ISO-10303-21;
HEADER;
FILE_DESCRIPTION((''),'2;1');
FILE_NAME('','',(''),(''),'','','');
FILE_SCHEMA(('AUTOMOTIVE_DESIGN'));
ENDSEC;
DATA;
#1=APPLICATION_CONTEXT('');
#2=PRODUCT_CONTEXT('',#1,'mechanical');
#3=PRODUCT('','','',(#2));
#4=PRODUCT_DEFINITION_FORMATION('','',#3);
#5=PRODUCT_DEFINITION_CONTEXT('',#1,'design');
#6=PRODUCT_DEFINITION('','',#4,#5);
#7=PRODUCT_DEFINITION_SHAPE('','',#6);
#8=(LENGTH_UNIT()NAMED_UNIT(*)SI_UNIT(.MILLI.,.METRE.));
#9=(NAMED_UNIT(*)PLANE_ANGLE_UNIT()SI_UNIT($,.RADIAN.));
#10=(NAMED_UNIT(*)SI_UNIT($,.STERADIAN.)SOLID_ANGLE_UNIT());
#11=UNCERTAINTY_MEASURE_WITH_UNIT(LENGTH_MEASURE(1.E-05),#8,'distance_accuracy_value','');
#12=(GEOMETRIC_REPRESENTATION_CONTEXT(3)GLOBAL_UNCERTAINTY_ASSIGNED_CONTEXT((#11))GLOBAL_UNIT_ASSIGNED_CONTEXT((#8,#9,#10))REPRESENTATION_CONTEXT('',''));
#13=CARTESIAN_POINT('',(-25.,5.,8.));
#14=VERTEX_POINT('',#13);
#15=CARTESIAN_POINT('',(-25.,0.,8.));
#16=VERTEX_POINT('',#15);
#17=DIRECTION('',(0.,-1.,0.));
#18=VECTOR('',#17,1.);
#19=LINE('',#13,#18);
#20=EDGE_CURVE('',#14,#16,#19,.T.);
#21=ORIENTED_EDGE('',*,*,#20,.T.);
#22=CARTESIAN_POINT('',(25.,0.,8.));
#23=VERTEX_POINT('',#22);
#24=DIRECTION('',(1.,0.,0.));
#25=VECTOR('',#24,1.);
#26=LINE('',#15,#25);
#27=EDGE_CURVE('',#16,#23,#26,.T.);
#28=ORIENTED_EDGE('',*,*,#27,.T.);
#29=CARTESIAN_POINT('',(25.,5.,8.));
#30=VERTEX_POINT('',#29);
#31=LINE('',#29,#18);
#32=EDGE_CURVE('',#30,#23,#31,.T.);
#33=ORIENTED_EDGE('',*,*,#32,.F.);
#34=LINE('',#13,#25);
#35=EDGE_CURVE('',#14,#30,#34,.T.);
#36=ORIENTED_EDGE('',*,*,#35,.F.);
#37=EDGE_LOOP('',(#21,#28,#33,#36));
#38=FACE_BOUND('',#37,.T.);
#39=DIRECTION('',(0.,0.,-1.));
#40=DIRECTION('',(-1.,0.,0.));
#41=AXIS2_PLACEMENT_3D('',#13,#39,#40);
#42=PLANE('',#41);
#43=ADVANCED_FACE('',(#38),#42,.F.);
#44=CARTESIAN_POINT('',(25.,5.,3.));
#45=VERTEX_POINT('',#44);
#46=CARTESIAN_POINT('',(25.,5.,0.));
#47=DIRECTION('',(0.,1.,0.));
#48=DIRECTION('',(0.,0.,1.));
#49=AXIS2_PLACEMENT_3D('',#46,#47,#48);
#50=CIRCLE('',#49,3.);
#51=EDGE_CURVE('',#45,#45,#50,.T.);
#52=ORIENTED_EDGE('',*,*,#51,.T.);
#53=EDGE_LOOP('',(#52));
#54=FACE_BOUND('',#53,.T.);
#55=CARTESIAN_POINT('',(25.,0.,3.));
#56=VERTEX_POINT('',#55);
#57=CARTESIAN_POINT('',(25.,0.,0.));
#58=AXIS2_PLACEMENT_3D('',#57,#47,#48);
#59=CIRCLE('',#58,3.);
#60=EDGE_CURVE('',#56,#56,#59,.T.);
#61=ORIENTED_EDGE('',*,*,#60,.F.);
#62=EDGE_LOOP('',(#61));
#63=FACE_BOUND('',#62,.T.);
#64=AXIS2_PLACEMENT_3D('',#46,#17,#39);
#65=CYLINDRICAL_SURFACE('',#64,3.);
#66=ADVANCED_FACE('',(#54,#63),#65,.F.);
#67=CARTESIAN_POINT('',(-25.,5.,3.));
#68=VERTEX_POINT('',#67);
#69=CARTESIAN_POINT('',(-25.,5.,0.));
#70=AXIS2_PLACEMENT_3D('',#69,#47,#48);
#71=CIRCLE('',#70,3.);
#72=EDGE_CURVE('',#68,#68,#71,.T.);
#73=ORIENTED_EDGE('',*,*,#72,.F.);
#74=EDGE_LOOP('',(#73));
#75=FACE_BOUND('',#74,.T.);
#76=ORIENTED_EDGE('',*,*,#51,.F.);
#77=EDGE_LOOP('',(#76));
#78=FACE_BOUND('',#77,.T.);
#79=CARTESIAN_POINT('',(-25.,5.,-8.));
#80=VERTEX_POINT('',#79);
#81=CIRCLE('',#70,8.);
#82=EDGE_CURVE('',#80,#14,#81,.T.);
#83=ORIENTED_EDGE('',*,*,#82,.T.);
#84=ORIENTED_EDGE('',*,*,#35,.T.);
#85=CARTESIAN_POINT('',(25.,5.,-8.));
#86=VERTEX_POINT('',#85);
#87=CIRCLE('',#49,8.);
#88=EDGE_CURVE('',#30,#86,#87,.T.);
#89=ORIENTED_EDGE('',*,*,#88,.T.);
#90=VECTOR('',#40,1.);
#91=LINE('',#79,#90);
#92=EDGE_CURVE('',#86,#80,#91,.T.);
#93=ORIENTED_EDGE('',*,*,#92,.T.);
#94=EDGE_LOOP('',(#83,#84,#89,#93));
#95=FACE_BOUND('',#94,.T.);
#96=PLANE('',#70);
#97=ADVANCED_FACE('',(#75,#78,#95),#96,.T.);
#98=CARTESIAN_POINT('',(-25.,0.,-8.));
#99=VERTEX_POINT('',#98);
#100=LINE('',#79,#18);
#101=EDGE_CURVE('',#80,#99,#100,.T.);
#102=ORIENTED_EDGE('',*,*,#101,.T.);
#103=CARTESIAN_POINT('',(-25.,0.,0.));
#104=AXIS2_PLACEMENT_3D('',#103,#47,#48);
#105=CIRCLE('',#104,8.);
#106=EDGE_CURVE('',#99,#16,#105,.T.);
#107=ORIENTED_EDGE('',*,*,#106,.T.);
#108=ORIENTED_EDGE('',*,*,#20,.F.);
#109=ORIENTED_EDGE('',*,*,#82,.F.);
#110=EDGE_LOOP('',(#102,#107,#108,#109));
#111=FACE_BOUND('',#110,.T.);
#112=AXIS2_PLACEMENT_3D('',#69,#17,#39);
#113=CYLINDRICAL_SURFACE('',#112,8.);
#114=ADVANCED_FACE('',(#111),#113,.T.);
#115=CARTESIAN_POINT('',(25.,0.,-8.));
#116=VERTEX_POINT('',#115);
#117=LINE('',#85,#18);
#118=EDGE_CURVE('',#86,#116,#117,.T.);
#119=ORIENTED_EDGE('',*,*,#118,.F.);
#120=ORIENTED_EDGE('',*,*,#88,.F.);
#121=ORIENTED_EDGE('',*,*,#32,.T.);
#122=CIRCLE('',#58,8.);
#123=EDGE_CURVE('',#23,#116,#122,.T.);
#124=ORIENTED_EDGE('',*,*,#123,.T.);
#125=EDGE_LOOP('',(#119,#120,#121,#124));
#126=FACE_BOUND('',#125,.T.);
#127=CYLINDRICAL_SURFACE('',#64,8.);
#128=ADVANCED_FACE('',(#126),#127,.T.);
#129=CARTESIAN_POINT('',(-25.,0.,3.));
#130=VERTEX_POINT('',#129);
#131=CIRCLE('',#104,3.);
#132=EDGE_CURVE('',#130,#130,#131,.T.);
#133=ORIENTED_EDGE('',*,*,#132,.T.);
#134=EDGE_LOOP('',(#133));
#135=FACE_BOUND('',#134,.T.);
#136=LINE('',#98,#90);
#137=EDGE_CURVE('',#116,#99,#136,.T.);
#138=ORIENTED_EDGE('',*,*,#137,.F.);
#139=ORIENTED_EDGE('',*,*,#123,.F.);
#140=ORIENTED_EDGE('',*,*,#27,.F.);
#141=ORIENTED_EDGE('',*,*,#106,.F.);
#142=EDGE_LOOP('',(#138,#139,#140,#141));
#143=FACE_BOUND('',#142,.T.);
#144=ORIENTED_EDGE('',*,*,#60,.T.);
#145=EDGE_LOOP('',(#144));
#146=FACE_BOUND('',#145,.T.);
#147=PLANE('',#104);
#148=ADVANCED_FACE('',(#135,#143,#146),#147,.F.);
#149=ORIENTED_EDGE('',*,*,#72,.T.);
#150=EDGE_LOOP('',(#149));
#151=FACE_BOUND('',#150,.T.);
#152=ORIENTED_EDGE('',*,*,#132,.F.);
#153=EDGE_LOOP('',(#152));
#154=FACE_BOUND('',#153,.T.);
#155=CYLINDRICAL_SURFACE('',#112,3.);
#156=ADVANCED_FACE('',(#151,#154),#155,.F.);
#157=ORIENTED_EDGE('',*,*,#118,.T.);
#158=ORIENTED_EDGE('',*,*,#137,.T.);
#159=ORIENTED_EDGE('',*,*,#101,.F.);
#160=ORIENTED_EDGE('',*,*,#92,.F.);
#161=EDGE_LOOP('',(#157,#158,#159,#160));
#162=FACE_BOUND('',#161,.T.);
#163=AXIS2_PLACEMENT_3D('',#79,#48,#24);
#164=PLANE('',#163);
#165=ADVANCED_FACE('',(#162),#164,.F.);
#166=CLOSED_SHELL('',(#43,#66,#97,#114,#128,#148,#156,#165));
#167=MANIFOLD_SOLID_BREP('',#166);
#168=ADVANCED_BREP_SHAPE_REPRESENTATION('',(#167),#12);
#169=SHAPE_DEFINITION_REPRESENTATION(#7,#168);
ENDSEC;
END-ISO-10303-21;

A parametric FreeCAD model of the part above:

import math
import FreeCAD as App
import Part
import Sketcher
from FreeCAD import Vector
Q = App.Units.Quantity

doc = App.newDocument("Part")
body = doc.addObject("PartDesign::Body", "Body")

sketch1 = doc.addObject("Sketcher::SketchObject", "Sketch")
body.addObject(sketch1)
sketch1.AttachmentSupport = (doc.XZ_Plane, [""])
sketch1.MapMode = "FlatFace"
sketch1.addGeometry([
    Part.LineSegment(Vector(25, -8, 0), Vector(-25, -8, 0)),
    Part.ArcOfCircle(Part.Circle(Vector(-25, 0, 0), Vector(0, 0, 1), 8), math.radians(90), math.radians(270)),
    Part.LineSegment(Vector(-25, 8, 0), Vector(25, 8, 0)),
    Part.ArcOfCircle(Part.Circle(Vector(25, 0, 0), Vector(0, 0, 1), 8), math.radians(-90), math.radians(90)),
    Part.Circle(Vector(25, 0, 0), Vector(0, 0, 1), 3),
    Part.Circle(Vector(-25, 0, 0), Vector(0, 0, 1), 3),
], False)
sketch1.addConstraint([
    Sketcher.Constraint("Tangent", 0, 2, 1, 2),
    Sketcher.Constraint("Tangent", 1, 1, 2, 1),
    Sketcher.Constraint("Tangent", 2, 2, 3, 2),
    Sketcher.Constraint("Tangent", 3, 1, 0, 1),
    Sketcher.Constraint("Horizontal", 0),
    Sketcher.Constraint("Horizontal", 2),
    Sketcher.Constraint("Coincident", 4, 3, 3, 3),
    Sketcher.Constraint("Coincident", 5, 3, 1, 3),
    Sketcher.Constraint("Equal", 4, 5),
    Sketcher.Constraint("Symmetric", 1, 3, 3, 3, -1, 1),
    Sketcher.Constraint("Diameter", 4, Q("6 mm")),
    Sketcher.Constraint("Radius", 1, Q("8 mm")),
    Sketcher.Constraint("DistanceX", 0, 2, 0, 1, Q("50 mm")),
])
pad1 = doc.addObject("PartDesign::Pad", "Pad")
body.addObject(pad1)
pad1.Profile = sketch1
pad1.Length = 5
pad1.Reversed = True

doc.recompute()
